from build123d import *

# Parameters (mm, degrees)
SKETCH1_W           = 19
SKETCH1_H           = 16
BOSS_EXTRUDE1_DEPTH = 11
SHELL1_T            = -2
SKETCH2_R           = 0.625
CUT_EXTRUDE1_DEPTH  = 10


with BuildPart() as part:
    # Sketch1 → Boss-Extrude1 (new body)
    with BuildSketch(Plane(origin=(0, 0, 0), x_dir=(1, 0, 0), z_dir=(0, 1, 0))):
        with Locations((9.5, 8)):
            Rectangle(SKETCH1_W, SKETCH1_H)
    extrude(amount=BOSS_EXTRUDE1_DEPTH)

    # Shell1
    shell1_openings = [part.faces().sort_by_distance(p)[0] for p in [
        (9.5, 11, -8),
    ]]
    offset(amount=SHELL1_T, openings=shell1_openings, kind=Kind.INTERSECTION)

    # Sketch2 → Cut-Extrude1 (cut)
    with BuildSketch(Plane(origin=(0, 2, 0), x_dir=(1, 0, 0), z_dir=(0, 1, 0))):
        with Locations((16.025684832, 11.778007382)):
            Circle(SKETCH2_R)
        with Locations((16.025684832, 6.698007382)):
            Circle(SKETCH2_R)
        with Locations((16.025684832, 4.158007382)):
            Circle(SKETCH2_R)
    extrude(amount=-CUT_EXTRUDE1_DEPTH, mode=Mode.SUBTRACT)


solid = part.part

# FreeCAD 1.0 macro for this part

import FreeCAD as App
import Part
import Sketcher


def faces_at(feature, points):
    """Names of the faces that lie closest to the given points."""
    faces = feature.Shape.Faces
    near = lambda p: min(range(len(faces)), key=lambda i: faces[i].distToShape(Part.Vertex(*p))[0])
    return sorted({f"Face{near(p) + 1}" for p in points})


def add_polygon(sketch, points):
    """Adds a closed chain of lines whose ends are joined by coincident constraints."""
    first, n = sketch.GeometryCount, len(points)
    for a, b in zip(points, points[1:] + points[:1]):
        sketch.addGeometry(Part.LineSegment(App.Vector(*a, 0), App.Vector(*b, 0)), False)
    for i in range(n):
        sketch.addConstraint(Sketcher.Constraint("Coincident", first + i, 2, first + (i + 1) % n, 1))

doc = App.newDocument("Part")
body = doc.addObject("PartDesign::Body", "Body")

# Sketch on XZ plane
sketch1 = doc.addObject("Sketcher::SketchObject", "Sketch")
body.addObject(sketch1)
sketch1.AttachmentSupport = (doc.XZ_Plane, [""])
sketch1.MapMode = "FlatFace"
add_polygon(sketch1, [(0, -16), (0, 0), (19, 0), (19, -16)])  # lines 0-3
sketch1.addConstraint(Sketcher.Constraint("Vertical", 0))
sketch1.addConstraint(Sketcher.Constraint("Horizontal", 1))
sketch1.addConstraint(Sketcher.Constraint("Vertical", 2))
sketch1.addConstraint(Sketcher.Constraint("Horizontal", 3))
sketch1.addConstraint(Sketcher.Constraint("Coincident", 0, 2, -1, 1))
sketch1.addConstraint(Sketcher.Constraint("DistanceX", 1, 1, 1, 2, 19.0))
sketch1.addConstraint(Sketcher.Constraint("DistanceY", 0, 1, 0, 2, 16.0))
pad1 = doc.addObject("PartDesign::Pad", "Pad")
body.addObject(pad1)
pad1.Profile = sketch1
pad1.Length = 11
pad1.Reversed = True
doc.recompute()

thickness = doc.addObject("PartDesign::Thickness", "Thickness")
body.addObject(thickness)
thickness.Base = (pad1, faces_at(pad1, [(9.5, 11, -8)]))
thickness.Value = 2
thickness.Reversed = True
thickness.Join = "Intersection"

# Sketch on XZ plane
sketch2 = doc.addObject("Sketcher::SketchObject", "Sketch001")
body.addObject(sketch2)
sketch2.AttachmentSupport = (doc.XZ_Plane, [""])
sketch2.MapMode = "FlatFace"
sketch2.AttachmentOffset = App.Placement(App.Vector(0, 0, -2), App.Rotation())
sketch2.addGeometry(Part.Circle(App.Vector(16.025685, -11.778007, 0), App.Vector(0, 0, 1), 0.625), False)
sketch2.addGeometry(Part.Circle(App.Vector(16.025685, -6.698007, 0), App.Vector(0, 0, 1), 0.625), False)
sketch2.addGeometry(Part.Circle(App.Vector(16.025685, -4.158007, 0), App.Vector(0, 0, 1), 0.625), False)
sketch2.addConstraint(Sketcher.Constraint("Equal", 0, 1))
sketch2.addConstraint(Sketcher.Constraint("Equal", 1, 2))
sketch2.addConstraint(Sketcher.Constraint("Vertical", 0, 3, 1, 3))
sketch2.addConstraint(Sketcher.Constraint("Vertical", 1, 3, 2, 3))
sketch2.addConstraint(Sketcher.Constraint("Diameter", 0, 1.25))
sketch2.addConstraint(Sketcher.Constraint("DistanceY", 0, 3, 1, 3, 5.08))
sketch2.addConstraint(Sketcher.Constraint("DistanceY", 1, 3, 2, 3, 2.54))
sketch2.addConstraint(Sketcher.Constraint("DistanceX", -1, 1, 0, 3, 16.025685))
sketch2.addConstraint(Sketcher.Constraint("DistanceY", 0, 3, -1, 1, 11.778007))
pocket1 = doc.addObject("PartDesign::Pocket", "Pocket")
body.addObject(pocket1)
pocket1.Profile = sketch2
pocket1.Length = 10
pocket1.Reversed = True

doc.recompute()
